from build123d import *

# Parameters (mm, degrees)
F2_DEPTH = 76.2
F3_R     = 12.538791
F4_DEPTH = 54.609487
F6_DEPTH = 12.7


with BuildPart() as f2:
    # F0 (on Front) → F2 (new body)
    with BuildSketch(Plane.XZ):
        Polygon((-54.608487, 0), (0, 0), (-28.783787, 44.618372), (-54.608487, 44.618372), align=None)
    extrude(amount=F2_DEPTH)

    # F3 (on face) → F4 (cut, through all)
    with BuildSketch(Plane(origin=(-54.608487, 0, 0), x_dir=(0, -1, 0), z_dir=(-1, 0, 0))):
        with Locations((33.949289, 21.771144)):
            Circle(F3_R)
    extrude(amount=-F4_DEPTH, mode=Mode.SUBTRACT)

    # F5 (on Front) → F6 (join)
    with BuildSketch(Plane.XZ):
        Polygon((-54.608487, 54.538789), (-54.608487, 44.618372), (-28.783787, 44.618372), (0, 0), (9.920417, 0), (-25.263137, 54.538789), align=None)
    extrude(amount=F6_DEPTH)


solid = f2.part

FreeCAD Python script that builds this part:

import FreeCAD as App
import Part
import Sketcher
from FreeCAD import Vector
Q = App.Units.Quantity

doc = App.newDocument("Part")
body = doc.addObject("PartDesign::Body", "Body")

sketch1 = body.newObject("Sketcher::SketchObject", "Sketch")
sketch1.AttachmentSupport = (doc.getObject("XZ_Plane"), [""])
sketch1.MapMode = "FlatFace"
sketch1.addGeometry([
    Part.LineSegment(Vector(-55, 0, 0), Vector(0, 0, 0)),
    Part.LineSegment(Vector(0, 0, 0), Vector(-29, 45, 0)),
    Part.LineSegment(Vector(-29, 45, 0), Vector(-55, 45, 0)),
    Part.LineSegment(Vector(-55, 45, 0), Vector(-55, 0, 0)),
], False)
sketch1.addConstraint([
    Sketcher.Constraint("Coincident", 0, 2, 1, 1),
    Sketcher.Constraint("Coincident", 1, 2, 2, 1),
    Sketcher.Constraint("Coincident", 2, 2, 3, 1),
    Sketcher.Constraint("Coincident", 3, 2, 0, 1),
    Sketcher.Constraint("Horizontal", 0),
    Sketcher.Constraint("Horizontal", 2),
    Sketcher.Constraint("Vertical", 3),
    Sketcher.Constraint("Coincident", 0, 2, -1, 1),
    Sketcher.Constraint("DistanceX", 2, 2, 2, 1, 25.8247),
    Sketcher.Constraint("DistanceX", 0, 1, 0, 2, 54.608487),
    Sketcher.Constraint("DistanceY", 3, 2, 3, 1, 44.618372),
])
pad1 = body.newObject("PartDesign::Pad", "Pad")
pad1.Profile = sketch1
pad1.Length = Q("3 in")

sketch2 = body.newObject("Sketcher::SketchObject", "Sketch001")
sketch2.AttachmentSupport = (doc.getObject("YZ_Plane"), [""])
sketch2.MapMode = "FlatFace"
sketch2.AttachmentOffset = App.Placement(Vector(0, 0, -54.608487), App.Rotation())
sketch2.addGeometry(Part.Circle(Vector(-34, 22, 0), Vector(0, 0, 1), 13), False)
sketch2.addConstraint([
    Sketcher.Constraint("Diameter", 0, 25.077582),
    Sketcher.Constraint("DistanceX", 0, 3, -1, 1, 33.949289),
    Sketcher.Constraint("DistanceY", -1, 1, 0, 3, 21.771144),
])
pocket1 = body.newObject("PartDesign::Pocket", "Pocket")
pocket1.Profile = sketch2
pocket1.Type = "ThroughAll"
pocket1.Reversed = True

sketch3 = body.newObject("Sketcher::SketchObject", "Sketch002")
sketch3.AttachmentSupport = (doc.getObject("XZ_Plane"), [""])
sketch3.MapMode = "FlatFace"
sketch3.addGeometry([
    Part.LineSegment(Vector(-55, 55, 0), Vector(-55, 45, 0)),
    Part.LineSegment(Vector(-55, 45, 0), Vector(-29, 45, 0)),
    Part.LineSegment(Vector(-29, 45, 0), Vector(0, 0, 0)),
    Part.LineSegment(Vector(0, 0, 0), Vector(10, 0, 0)),
    Part.LineSegment(Vector(10, 0, 0), Vector(-25, 55, 0)),
    Part.LineSegment(Vector(-25, 55, 0), Vector(-55, 55, 0)),
], False)
sketch3.addConstraint([
    Sketcher.Constraint("Coincident", 0, 2, 1, 1),
    Sketcher.Constraint("Coincident", 1, 2, 2, 1),
    Sketcher.Constraint("Coincident", 2, 2, 3, 1),
    Sketcher.Constraint("Coincident", 3, 2, 4, 1),
    Sketcher.Constraint("Coincident", 4, 2, 5, 1),
    Sketcher.Constraint("Coincident", 5, 2, 0, 1),
    Sketcher.Constraint("Vertical", 0),
    Sketcher.Constraint("Horizontal", 1),
    Sketcher.Constraint("Horizontal", 3),
    Sketcher.Constraint("Horizontal", 5),
    Sketcher.Constraint("Coincident", 2, 2, -1, 1),
    Sketcher.Constraint("Parallel", 2, 4),
    Sketcher.Constraint("Equal", 3, 0),
    Sketcher.Constraint("DistanceX", 1, 1, 1, 2, 25.8247),
    Sketcher.Constraint("DistanceX", 5, 2, 5, 1, 29.34535),
    Sketcher.Constraint("Distance", 4, 64.902712),
    Sketcher.Constraint("DistanceX", 3, 1, 3, 2, 9.920417),
])
pad2 = body.newObject("PartDesign::Pad", "Pad001")
pad2.Profile = sketch3
pad2.Length = Q("0.5 in")

doc.recompute()
